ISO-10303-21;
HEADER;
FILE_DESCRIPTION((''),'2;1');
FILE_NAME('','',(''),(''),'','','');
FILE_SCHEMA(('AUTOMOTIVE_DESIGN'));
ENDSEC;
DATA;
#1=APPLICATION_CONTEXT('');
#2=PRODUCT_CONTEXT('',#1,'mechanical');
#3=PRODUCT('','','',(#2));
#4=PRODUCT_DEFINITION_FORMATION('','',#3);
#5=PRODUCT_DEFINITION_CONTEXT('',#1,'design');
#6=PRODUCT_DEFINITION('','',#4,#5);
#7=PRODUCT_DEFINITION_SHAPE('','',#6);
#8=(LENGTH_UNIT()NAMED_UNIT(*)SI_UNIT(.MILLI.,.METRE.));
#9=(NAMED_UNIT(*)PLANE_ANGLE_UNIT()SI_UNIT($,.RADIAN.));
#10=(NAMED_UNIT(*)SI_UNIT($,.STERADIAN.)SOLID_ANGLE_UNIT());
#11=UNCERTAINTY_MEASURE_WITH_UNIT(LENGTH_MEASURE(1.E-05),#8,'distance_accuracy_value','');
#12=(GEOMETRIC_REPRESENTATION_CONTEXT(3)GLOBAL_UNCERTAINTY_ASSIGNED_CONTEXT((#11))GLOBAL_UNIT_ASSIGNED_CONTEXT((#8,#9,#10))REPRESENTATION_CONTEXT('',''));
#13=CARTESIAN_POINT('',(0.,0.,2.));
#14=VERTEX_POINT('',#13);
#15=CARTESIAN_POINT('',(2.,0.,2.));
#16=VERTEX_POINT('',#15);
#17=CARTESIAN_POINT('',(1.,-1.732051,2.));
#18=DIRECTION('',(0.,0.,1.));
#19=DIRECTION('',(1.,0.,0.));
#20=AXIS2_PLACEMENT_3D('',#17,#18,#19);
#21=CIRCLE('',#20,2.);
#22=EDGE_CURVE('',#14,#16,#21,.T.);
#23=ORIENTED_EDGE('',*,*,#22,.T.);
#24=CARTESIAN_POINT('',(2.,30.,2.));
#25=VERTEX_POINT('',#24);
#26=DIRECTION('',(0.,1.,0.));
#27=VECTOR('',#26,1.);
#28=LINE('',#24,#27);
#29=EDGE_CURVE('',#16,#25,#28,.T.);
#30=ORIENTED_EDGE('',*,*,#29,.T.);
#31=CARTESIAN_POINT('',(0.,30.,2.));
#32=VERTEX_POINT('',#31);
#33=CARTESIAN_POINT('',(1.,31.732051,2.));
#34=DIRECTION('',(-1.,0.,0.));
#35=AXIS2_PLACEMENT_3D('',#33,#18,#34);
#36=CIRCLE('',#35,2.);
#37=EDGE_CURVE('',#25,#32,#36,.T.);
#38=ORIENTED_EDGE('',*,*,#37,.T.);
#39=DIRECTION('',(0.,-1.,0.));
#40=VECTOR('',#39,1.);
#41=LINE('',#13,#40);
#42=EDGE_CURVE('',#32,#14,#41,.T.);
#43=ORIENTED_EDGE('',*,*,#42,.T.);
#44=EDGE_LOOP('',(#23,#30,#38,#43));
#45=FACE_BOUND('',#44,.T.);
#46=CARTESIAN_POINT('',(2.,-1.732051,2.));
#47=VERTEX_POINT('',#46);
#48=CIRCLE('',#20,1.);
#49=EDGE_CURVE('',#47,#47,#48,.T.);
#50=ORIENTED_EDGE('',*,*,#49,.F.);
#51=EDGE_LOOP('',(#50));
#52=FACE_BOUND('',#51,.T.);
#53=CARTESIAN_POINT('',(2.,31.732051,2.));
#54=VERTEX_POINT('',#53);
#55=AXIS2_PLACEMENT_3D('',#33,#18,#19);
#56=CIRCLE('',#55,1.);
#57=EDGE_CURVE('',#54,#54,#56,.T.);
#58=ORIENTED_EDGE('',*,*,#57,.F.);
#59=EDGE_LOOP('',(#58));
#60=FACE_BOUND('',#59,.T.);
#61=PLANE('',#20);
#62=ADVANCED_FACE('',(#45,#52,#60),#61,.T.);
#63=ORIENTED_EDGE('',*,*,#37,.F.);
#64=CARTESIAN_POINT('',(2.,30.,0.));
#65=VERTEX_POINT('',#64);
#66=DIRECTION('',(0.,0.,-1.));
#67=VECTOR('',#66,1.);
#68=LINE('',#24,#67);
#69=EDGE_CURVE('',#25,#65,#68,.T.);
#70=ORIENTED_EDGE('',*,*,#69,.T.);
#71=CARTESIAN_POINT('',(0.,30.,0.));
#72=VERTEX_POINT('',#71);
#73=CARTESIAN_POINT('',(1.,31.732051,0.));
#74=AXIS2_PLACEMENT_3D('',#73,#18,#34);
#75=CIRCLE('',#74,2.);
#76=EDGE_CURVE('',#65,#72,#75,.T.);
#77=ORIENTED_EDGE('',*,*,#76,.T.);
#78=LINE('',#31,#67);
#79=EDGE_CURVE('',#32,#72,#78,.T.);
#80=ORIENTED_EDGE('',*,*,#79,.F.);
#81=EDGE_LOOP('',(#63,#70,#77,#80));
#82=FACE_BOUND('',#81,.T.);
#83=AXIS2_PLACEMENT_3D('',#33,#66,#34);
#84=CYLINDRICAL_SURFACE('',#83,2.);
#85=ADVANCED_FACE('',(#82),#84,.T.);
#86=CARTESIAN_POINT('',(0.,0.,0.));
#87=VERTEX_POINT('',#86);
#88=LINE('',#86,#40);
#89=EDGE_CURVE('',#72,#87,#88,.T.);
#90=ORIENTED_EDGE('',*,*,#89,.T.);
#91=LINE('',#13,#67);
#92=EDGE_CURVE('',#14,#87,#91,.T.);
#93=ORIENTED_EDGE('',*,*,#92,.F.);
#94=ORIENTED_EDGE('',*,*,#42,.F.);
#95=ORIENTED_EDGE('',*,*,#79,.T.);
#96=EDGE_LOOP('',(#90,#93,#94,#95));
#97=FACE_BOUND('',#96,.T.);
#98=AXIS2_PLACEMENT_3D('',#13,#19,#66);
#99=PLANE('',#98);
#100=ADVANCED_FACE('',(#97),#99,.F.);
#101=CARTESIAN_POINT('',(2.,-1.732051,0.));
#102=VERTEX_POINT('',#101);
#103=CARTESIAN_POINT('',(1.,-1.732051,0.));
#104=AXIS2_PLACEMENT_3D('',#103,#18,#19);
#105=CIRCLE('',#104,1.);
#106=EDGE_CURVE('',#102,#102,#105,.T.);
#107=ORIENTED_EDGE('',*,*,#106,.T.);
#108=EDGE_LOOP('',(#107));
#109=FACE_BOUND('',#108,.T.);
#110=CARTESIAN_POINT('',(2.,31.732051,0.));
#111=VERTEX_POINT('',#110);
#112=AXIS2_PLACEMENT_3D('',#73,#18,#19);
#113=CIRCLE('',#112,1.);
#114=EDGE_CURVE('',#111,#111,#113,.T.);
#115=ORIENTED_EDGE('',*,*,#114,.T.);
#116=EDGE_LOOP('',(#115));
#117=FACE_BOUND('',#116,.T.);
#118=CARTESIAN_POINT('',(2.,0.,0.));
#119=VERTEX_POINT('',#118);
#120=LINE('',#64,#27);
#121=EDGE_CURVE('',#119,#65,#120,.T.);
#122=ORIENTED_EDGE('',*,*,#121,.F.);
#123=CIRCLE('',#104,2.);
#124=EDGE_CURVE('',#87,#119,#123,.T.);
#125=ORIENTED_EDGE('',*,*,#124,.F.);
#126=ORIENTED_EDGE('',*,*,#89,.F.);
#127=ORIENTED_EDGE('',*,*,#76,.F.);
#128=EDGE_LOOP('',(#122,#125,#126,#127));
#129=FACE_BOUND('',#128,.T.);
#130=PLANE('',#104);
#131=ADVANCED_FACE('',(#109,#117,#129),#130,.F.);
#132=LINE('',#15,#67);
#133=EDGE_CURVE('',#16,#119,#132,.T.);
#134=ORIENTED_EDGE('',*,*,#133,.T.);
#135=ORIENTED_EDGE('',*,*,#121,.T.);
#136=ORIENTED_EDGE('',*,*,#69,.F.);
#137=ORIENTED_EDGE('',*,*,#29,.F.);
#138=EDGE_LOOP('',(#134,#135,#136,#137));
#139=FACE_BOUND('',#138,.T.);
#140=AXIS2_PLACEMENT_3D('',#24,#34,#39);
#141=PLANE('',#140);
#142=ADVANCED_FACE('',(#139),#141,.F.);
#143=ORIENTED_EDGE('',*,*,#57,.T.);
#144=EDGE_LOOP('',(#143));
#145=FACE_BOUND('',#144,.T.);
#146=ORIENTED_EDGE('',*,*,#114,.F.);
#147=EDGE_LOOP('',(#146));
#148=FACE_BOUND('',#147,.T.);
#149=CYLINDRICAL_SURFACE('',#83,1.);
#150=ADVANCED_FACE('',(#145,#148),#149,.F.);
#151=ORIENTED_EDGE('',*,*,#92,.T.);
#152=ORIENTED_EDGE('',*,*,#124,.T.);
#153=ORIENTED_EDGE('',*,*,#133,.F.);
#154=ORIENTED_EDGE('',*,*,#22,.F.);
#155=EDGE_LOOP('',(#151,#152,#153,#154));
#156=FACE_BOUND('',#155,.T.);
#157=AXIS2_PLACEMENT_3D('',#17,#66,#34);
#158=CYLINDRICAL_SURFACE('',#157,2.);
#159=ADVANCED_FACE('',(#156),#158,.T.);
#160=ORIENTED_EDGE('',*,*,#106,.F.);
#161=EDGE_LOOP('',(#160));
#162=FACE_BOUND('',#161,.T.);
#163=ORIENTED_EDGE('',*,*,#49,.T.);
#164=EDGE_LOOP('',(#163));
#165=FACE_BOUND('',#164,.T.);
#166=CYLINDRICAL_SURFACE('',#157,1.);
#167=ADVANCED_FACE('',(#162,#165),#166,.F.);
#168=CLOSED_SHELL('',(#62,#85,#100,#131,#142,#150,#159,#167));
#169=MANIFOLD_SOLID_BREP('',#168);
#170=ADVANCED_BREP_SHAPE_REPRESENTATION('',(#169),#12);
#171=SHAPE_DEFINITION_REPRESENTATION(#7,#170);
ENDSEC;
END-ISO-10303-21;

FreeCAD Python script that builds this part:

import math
import FreeCAD as App
import Part
import Sketcher
Q = App.Units.Quantity

doc = App.newDocument("Part")
body = doc.addObject("PartDesign::Body", "Body")

# Sketch on XY plane
sketch1 = body.newObject("Sketcher::SketchObject", "Sketch")
sketch1.AttachmentSupport = (doc.getObject("XY_Plane"), [""])
sketch1.MapMode = "FlatFace"
sketch1.addGeometry(Part.LineSegment(App.Vector(0, 30, 0), App.Vector(0, 0, 0)), False)
sketch1.addGeometry(Part.ArcOfCircle(Part.Circle(App.Vector(1, -1.7, 0), App.Vector(0, 0, 1), 2), math.radians(120), math.radians(420)), False)
sketch1.addGeometry(Part.LineSegment(App.Vector(2, 0, 0), App.Vector(2, 30, 0)), False)
sketch1.addGeometry(Part.ArcOfCircle(Part.Circle(App.Vector(1, 31.7, 0), App.Vector(0, 0, 1), 2), math.radians(-60), math.radians(240)), False)
sketch1.addGeometry(Part.Circle(App.Vector(1, -1.7, 0), App.Vector(0, 0, 1), 1), False)
sketch1.addGeometry(Part.Circle(App.Vector(1, 31.7, 0), App.Vector(0, 0, 1), 1), False)
sketch1.addConstraint(Sketcher.Constraint("Coincident", 0, 2, 1, 1))
sketch1.addConstraint(Sketcher.Constraint("Coincident", 1, 2, 2, 1))
sketch1.addConstraint(Sketcher.Constraint("Coincident", 2, 2, 3, 1))
sketch1.addConstraint(Sketcher.Constraint("Coincident", 3, 2, 0, 1))
sketch1.addConstraint(Sketcher.Constraint("Vertical", 0))
sketch1.addConstraint(Sketcher.Constraint("Vertical", 2))
sketch1.addConstraint(Sketcher.Constraint("Coincident", 0, 2, -1, 1))
sketch1.addConstraint(Sketcher.Constraint("Coincident", 4, 3, 1, 3))
sketch1.addConstraint(Sketcher.Constraint("Coincident", 5, 3, 3, 3))
sketch1.addConstraint(Sketcher.Constraint("Equal", 1, 3))
sketch1.addConstraint(Sketcher.Constraint("Equal", 4, 5))
sketch1.addConstraint(Sketcher.Constraint("PointOnObject", 1, 2, -1))
sketch1.addConstraint(Sketcher.Constraint("Horizontal", 2, 2, 3, 2))
sketch1.addConstraint(Sketcher.Constraint("Diameter", 4, Q("2 mm")))
sketch1.addConstraint(Sketcher.Constraint("Radius", 1, Q("2 mm")))
sketch1.addConstraint(Sketcher.Constraint("DistanceY", 0, 2, 0, 1, Q("30 mm")))
sketch1.addConstraint(Sketcher.Constraint("DistanceX", -1, 1, 1, 3, Q("1 mm")))
pad1 = body.newObject("PartDesign::Pad", "Pad")
pad1.Profile = sketch1
pad1.Length = 2

doc.recompute()
